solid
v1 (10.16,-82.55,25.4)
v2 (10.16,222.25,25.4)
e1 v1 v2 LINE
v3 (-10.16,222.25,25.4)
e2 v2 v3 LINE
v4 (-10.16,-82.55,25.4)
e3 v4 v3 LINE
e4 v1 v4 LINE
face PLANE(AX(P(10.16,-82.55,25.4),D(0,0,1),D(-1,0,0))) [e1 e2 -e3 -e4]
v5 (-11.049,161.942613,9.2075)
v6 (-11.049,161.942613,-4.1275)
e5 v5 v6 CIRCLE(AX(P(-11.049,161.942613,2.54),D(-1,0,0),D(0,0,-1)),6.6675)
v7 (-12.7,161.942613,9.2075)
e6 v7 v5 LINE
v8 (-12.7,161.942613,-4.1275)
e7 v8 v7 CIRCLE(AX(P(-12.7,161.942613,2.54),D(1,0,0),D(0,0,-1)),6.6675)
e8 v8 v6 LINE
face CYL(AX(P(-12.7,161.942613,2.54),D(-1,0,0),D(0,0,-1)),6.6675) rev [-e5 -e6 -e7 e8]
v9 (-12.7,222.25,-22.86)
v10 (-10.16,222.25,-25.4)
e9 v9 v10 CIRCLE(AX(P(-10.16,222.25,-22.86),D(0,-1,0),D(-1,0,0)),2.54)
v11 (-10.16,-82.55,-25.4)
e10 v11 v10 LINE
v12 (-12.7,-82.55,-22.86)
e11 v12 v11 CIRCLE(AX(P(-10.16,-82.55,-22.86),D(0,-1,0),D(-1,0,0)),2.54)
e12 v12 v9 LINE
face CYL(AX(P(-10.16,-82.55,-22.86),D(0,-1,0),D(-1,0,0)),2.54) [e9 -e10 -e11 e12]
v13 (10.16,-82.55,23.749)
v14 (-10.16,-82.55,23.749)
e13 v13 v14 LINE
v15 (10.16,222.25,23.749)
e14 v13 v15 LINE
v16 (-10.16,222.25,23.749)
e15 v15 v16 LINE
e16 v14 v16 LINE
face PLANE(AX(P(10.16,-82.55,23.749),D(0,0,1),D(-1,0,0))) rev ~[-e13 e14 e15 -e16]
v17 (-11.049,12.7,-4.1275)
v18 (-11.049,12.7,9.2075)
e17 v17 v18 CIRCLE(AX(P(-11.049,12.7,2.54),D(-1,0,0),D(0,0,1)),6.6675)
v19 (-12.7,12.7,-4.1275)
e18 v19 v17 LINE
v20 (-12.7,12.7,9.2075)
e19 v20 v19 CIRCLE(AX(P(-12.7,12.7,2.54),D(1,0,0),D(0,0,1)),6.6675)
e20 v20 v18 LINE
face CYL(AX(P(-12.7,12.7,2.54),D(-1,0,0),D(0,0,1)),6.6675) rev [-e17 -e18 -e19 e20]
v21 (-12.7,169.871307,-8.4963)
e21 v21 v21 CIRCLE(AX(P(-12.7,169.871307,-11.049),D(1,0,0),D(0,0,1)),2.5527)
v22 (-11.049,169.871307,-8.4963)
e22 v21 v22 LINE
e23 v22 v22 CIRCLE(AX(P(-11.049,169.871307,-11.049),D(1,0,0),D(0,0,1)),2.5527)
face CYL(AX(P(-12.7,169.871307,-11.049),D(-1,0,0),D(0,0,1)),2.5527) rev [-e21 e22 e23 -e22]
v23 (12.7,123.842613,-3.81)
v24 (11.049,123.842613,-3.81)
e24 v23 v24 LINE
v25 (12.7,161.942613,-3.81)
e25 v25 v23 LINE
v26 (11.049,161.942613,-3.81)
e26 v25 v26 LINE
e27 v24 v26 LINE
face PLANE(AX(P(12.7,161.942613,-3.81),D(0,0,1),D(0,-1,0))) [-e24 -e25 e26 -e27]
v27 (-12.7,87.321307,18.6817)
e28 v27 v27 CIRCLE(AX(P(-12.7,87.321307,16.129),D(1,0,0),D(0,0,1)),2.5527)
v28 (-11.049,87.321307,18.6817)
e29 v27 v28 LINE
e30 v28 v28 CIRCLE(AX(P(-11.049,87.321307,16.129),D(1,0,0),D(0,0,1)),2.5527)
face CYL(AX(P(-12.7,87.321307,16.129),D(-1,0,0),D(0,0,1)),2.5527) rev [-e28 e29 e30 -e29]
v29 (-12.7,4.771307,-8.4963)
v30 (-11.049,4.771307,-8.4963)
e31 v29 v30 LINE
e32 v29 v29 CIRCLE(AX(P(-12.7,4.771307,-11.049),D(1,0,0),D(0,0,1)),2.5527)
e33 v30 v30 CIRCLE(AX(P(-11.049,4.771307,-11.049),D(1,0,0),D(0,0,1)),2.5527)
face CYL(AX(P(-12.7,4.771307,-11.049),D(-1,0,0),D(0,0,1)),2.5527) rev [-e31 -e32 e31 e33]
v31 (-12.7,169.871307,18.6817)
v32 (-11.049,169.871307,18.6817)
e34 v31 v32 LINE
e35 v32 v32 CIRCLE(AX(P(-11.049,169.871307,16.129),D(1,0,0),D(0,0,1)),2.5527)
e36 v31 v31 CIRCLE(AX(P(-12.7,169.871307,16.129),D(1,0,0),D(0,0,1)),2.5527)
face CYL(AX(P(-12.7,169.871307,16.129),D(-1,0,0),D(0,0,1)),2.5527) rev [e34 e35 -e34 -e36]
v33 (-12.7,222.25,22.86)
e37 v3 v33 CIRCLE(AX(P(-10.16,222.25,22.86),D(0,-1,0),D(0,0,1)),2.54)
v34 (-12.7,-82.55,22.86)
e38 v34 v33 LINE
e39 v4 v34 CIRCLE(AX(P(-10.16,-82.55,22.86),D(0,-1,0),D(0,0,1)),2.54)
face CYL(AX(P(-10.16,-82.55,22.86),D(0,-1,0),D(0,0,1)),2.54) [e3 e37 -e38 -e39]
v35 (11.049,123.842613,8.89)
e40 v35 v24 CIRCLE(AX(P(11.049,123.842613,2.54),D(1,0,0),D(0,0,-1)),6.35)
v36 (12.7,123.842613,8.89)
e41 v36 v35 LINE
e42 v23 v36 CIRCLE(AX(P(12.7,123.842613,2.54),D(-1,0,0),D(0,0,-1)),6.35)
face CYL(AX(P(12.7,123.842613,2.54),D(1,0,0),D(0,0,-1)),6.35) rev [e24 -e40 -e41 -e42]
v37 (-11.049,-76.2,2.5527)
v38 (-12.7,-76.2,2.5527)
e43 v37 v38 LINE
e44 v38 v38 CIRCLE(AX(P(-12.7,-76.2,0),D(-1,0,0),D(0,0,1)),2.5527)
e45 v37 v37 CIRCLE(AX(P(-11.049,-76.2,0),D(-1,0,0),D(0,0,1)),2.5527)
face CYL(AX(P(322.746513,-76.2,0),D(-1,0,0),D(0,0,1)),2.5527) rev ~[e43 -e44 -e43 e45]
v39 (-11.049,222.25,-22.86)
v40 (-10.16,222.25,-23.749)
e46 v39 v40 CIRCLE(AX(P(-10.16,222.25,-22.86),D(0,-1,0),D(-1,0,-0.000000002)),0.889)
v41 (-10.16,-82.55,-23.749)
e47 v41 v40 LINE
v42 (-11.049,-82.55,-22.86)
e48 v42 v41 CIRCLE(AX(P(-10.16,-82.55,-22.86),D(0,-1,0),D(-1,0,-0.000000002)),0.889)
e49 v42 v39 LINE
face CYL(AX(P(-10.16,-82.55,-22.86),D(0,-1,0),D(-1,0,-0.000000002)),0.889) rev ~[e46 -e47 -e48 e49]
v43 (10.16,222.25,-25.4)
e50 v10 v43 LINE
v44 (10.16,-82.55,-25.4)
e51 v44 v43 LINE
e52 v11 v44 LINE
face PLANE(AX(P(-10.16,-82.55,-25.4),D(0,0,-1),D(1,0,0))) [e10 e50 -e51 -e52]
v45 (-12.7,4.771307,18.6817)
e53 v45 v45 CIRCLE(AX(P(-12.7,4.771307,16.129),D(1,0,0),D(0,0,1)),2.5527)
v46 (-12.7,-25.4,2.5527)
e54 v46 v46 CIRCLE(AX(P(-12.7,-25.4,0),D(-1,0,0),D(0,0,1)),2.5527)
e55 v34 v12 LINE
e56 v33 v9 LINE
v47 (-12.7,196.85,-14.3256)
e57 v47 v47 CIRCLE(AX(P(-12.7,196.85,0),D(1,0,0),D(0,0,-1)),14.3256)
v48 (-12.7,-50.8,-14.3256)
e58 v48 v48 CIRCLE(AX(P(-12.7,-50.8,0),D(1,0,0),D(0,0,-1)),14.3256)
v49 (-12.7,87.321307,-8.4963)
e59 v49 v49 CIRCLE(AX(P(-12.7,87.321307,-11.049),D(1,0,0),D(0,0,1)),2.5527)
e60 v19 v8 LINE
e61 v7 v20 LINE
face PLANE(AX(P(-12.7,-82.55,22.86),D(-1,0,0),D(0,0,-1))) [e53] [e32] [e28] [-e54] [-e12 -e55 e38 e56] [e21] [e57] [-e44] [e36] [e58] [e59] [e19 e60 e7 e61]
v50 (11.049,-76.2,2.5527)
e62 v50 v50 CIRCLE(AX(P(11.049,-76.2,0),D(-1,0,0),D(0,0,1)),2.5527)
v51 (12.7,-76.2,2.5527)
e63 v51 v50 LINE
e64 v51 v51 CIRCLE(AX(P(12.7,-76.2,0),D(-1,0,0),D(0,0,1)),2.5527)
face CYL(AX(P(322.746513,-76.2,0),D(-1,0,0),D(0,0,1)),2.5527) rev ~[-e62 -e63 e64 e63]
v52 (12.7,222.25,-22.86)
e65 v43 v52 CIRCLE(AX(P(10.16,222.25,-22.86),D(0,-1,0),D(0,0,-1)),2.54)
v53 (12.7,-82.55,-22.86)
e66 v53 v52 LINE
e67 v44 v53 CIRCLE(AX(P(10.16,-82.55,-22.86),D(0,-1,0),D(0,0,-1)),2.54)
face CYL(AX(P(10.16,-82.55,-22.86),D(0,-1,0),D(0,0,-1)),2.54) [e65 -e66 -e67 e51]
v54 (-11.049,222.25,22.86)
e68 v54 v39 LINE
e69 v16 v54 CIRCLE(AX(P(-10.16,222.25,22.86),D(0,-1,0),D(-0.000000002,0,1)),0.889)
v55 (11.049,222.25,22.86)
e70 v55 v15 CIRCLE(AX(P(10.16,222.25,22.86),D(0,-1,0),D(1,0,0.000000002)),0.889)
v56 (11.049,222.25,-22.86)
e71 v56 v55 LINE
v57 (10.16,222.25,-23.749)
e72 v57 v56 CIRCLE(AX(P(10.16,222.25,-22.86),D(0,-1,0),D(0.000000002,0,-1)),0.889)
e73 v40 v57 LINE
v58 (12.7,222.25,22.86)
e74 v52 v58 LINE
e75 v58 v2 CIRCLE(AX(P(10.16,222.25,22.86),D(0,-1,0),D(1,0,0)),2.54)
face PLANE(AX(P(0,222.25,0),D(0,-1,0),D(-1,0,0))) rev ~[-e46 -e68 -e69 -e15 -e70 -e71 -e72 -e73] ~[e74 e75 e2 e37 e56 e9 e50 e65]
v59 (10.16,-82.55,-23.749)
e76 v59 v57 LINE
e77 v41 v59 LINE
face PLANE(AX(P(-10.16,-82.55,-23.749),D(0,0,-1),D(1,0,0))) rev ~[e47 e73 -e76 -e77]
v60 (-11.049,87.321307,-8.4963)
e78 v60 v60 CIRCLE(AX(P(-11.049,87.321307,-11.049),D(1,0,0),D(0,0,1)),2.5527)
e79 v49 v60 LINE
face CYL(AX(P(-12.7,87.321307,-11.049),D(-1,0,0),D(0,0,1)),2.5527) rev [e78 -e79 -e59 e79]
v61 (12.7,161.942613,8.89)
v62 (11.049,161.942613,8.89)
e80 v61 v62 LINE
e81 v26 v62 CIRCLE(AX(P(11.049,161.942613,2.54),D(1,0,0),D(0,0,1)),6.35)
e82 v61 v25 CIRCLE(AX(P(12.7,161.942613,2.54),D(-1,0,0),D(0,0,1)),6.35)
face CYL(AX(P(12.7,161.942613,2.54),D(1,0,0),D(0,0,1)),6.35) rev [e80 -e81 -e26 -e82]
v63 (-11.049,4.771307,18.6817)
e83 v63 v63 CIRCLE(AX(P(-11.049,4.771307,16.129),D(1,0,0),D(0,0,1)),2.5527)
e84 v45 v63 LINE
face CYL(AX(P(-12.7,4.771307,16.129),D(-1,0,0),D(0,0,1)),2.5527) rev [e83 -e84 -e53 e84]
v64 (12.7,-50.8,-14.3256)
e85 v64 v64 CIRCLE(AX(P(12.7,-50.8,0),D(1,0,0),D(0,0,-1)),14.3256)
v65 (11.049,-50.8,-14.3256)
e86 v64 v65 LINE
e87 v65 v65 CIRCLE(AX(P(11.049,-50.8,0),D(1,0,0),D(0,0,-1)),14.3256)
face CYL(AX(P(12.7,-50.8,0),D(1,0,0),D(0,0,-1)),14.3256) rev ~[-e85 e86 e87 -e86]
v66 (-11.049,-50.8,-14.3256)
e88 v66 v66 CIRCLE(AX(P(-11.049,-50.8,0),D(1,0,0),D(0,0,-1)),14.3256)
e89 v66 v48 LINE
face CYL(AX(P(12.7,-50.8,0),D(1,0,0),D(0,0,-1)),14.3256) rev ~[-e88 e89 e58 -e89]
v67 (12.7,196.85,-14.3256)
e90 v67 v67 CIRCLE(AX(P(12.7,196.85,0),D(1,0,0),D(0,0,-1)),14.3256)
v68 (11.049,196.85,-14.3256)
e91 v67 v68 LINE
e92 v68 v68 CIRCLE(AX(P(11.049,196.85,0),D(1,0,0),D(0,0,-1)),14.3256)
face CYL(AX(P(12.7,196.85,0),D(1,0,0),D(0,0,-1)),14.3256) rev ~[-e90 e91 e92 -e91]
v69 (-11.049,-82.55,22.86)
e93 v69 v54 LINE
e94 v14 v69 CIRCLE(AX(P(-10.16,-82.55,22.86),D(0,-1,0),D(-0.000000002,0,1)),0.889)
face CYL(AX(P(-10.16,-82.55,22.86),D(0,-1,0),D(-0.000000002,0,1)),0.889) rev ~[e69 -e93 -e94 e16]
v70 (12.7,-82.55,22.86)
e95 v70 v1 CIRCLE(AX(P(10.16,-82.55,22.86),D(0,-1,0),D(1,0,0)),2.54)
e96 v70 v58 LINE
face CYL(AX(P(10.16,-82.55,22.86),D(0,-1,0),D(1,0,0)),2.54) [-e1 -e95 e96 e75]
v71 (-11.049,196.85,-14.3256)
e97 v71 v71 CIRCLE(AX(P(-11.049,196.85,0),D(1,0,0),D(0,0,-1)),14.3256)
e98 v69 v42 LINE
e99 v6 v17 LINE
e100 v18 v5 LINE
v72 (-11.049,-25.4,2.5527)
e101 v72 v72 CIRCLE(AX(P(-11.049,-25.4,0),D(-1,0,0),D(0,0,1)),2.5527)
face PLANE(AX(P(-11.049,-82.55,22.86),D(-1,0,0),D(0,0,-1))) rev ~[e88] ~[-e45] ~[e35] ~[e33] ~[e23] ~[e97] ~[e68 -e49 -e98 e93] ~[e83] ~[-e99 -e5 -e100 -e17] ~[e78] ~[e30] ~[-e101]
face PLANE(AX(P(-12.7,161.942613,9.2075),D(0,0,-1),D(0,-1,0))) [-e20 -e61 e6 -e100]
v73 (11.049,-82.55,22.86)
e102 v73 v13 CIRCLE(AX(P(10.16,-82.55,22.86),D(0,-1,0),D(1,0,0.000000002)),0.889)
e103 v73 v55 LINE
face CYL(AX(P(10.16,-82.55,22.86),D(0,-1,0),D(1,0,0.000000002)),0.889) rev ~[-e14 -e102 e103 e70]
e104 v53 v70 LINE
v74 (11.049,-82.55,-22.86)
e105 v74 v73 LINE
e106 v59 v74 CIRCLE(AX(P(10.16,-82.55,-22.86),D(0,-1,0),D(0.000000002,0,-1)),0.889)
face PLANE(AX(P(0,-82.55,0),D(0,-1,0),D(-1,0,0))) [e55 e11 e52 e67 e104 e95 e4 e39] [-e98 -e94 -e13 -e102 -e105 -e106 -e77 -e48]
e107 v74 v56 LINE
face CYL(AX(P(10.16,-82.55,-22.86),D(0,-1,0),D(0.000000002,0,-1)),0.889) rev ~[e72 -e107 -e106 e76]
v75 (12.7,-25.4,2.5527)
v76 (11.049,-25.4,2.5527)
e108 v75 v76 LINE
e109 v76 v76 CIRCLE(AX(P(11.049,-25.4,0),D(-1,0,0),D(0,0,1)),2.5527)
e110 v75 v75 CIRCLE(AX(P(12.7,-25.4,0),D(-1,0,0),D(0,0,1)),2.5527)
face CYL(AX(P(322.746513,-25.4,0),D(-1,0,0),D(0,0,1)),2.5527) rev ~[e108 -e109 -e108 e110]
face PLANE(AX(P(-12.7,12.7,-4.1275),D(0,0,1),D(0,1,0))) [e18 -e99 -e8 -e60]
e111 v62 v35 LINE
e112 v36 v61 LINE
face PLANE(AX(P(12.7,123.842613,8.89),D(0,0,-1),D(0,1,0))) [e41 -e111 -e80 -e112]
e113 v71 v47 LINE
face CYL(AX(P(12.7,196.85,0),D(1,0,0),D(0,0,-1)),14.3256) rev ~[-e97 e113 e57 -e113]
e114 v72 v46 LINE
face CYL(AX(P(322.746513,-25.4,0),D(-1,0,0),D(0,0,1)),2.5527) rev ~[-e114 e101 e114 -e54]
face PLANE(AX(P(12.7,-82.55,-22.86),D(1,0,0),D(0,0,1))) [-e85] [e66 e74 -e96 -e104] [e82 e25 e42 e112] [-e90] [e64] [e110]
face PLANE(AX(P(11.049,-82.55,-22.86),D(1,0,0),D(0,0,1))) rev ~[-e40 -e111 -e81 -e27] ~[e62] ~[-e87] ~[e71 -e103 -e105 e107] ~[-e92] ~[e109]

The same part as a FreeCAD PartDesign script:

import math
import FreeCAD as App
import Part
import Sketcher

V = App.Vector
Q = App.Units.Quantity

doc = App.newDocument("Part")
body = doc.addObject("PartDesign::Body", "Body")

# Sketch on XZ plane
sketch1 = body.newObject("Sketcher::SketchObject", "Sketch")
sketch1.AttachmentSupport = (doc.getObject("XZ_Plane"), [""])
sketch1.MapMode = "FlatFace"
sketch1.addGeometry(Part.LineSegment(V(10.16, -25.4, 0), V(-10.16, -25.4, 0)), False)
sketch1.addGeometry(Part.ArcOfCircle(Part.Circle(V(-10.16, -22.86, 0), V(0, 0, 1), 2.54), math.radians(-180), math.radians(-90)), False)
sketch1.addGeometry(Part.LineSegment(V(-12.7, -22.86, 0), V(-12.7, 22.86, 0)), False)
sketch1.addGeometry(Part.ArcOfCircle(Part.Circle(V(-10.16, 22.86, 0), V(0, 0, 1), 2.54), math.radians(90), math.radians(180)), False)
sketch1.addGeometry(Part.LineSegment(V(-10.16, 25.4, 0), V(10.16, 25.4, 0)), False)
sketch1.addGeometry(Part.ArcOfCircle(Part.Circle(V(10.16, 22.86, 0), V(0, 0, 1), 2.54), math.radians(0), math.radians(90)), False)
sketch1.addGeometry(Part.LineSegment(V(12.7, 22.86, 0), V(12.7, -22.86, 0)), False)
sketch1.addGeometry(Part.ArcOfCircle(Part.Circle(V(10.16, -22.86, 0), V(0, 0, 1), 2.54), math.radians(-90), math.radians(0)), False)
sketch1.addGeometry(Part.LineSegment(V(-10.16, -23.749, 0), V(10.16, -23.749, 0)), False)
sketch1.addGeometry(Part.ArcOfCircle(Part.Circle(V(10.16, -22.86, 0), V(0, 0, 1), 0.889), math.radians(-90), math.radians(0)), False)
sketch1.addGeometry(Part.LineSegment(V(11.049, -22.86, 0), V(11.049, 22.86, 0)), False)
sketch1.addGeometry(Part.ArcOfCircle(Part.Circle(V(10.16, 22.86, 0), V(0, 0, 1), 0.889), math.radians(0), math.radians(90)), False)
sketch1.addGeometry(Part.LineSegment(V(10.16, 23.749, 0), V(-10.16, 23.749, 0)), False)
sketch1.addGeometry(Part.ArcOfCircle(Part.Circle(V(-10.16, 22.86, 0), V(0, 0, 1), 0.889), math.radians(90), math.radians(180)), False)
sketch1.addGeometry(Part.LineSegment(V(-11.049, 22.86, 0), V(-11.049, -22.86, 0)), False)
sketch1.addGeometry(Part.ArcOfCircle(Part.Circle(V(-10.16, -22.86, 0), V(0, 0, 1), 0.889), math.radians(-180), math.radians(-90)), False)
sketch1.addConstraint(Sketcher.Constraint("Tangent", 0, 2, 1, 2))
sketch1.addConstraint(Sketcher.Constraint("Tangent", 1, 1, 2, 1))
sketch1.addConstraint(Sketcher.Constraint("Tangent", 2, 2, 3, 2))
sketch1.addConstraint(Sketcher.Constraint("Tangent", 3, 1, 4, 1))
sketch1.addConstraint(Sketcher.Constraint("Tangent", 4, 2, 5, 2))
sketch1.addConstraint(Sketcher.Constraint("Tangent", 5, 1, 6, 1))
sketch1.addConstraint(Sketcher.Constraint("Tangent", 6, 2, 7, 2))
sketch1.addConstraint(Sketcher.Constraint("Tangent", 7, 1, 0, 1))
sketch1.addConstraint(Sketcher.Constraint("Tangent", 8, 2, 9, 1))
sketch1.addConstraint(Sketcher.Constraint("Tangent", 9, 2, 10, 1))
sketch1.addConstraint(Sketcher.Constraint("Tangent", 10, 2, 11, 1))
sketch1.addConstraint(Sketcher.Constraint("Tangent", 11, 2, 12, 1))
sketch1.addConstraint(Sketcher.Constraint("Tangent", 12, 2, 13, 1))
sketch1.addConstraint(Sketcher.Constraint("Tangent", 13, 2, 14, 1))
sketch1.addConstraint(Sketcher.Constraint("Tangent", 14, 2, 15, 1))
sketch1.addConstraint(Sketcher.Constraint("Tangent", 15, 2, 8, 1))
sketch1.addConstraint(Sketcher.Constraint("Horizontal", 0))
sketch1.addConstraint(Sketcher.Constraint("Vertical", 2))
sketch1.addConstraint(Sketcher.Constraint("Horizontal", 4))
sketch1.addConstraint(Sketcher.Constraint("Vertical", 6))
sketch1.addConstraint(Sketcher.Constraint("Horizontal", 8))
sketch1.addConstraint(Sketcher.Constraint("Vertical", 10))
sketch1.addConstraint(Sketcher.Constraint("Horizontal", 12))
sketch1.addConstraint(Sketcher.Constraint("Vertical", 14))
sketch1.addConstraint(Sketcher.Constraint("Coincident", 9, 3, 7, 3))
sketch1.addConstraint(Sketcher.Constraint("Coincident", 11, 3, 5, 3))
sketch1.addConstraint(Sketcher.Constraint("Coincident", 13, 3, 3, 3))
sketch1.addConstraint(Sketcher.Constraint("Equal", 1, 3))
sketch1.addConstraint(Sketcher.Constraint("Equal", 3, 5))
sketch1.addConstraint(Sketcher.Constraint("Equal", 5, 7))
sketch1.addConstraint(Sketcher.Constraint("Equal", 13, 15))
sketch1.addConstraint(Sketcher.Constraint("Symmetric", 1, 3, 5, 3, -1, 1))
sketch1.addConstraint(Sketcher.Constraint("Radius", 1, Q("0.1 in")))
sketch1.addConstraint(Sketcher.Constraint("DistanceX", 0, 2, 0, 1, Q("0.8 in")))
sketch1.addConstraint(Sketcher.Constraint("DistanceY", 2, 1, 2, 2, Q("1.8 in")))
sketch1.addConstraint(Sketcher.Constraint("Radius", 9, Q("0.035 in")))
pad1 = body.newObject("PartDesign::Pad", "Pad")
pad1.Profile = sketch1
pad1.Type = "TwoLengths"
pad1.Length = Q("8.75 in")
pad1.Length2 = Q("3.25 in")
pad1.Reversed = True

# Sketch on YZ plane
sketch2 = body.newObject("Sketcher::SketchObject", "Sketch001")
sketch2.AttachmentSupport = (doc.getObject("YZ_Plane"), [""])
sketch2.MapMode = "FlatFace"
sketch2.AttachmentOffset = App.Placement(V(0, 0, -0.5 * 25.4), App.Rotation())
sketch2.addGeometry(Part.LineSegment(V(12.7, 9.2075, 0), V(161.942613, 9.2075, 0)), False)
sketch2.addGeometry(Part.ArcOfCircle(Part.Circle(V(161.942613, 2.54, 0), V(0, 0, 1), 6.6675), math.radians(-90), math.radians(90)), False)
sketch2.addGeometry(Part.LineSegment(V(161.942613, -4.1275, 0), V(12.7, -4.1275, 0)), False)
sketch2.addGeometry(Part.ArcOfCircle(Part.Circle(V(12.7, 2.54, 0), V(0, 0, 1), 6.6675), math.radians(90), math.radians(270)), False)
sketch2.addConstraint(Sketcher.Constraint("Tangent", 0, 2, 1, 2))
sketch2.addConstraint(Sketcher.Constraint("Tangent", 1, 1, 2, 1))
sketch2.addConstraint(Sketcher.Constraint("Tangent", 2, 2, 3, 2))
sketch2.addConstraint(Sketcher.Constraint("Tangent", 3, 1, 0, 1))
sketch2.addConstraint(Sketcher.Constraint("Horizontal", 0))
sketch2.addConstraint(Sketcher.Constraint("Horizontal", 2))
sketch2.addConstraint(Sketcher.Constraint("DistanceY", -1, 1, 1, 3, Q("0.1 in")))
sketch2.addConstraint(Sketcher.Constraint("DistanceX", -1, 1, 3, 3, Q("0.5 in")))
sketch2.addConstraint(Sketcher.Constraint("Radius", 1, Q("0.2625 in")))
sketch2.addConstraint(Sketcher.Constraint("DistanceX", 0, 1, 0, 2, 149.242613))
pocket1 = body.newObject("PartDesign::Pocket", "Pocket")
pocket1.Profile = sketch2
pocket1.Type = "UpToFirst"
pocket1.Reversed = True

# Sketch on YZ plane
sketch3 = body.newObject("Sketcher::SketchObject", "Sketch002")
sketch3.AttachmentSupport = (doc.getObject("YZ_Plane"), [""])
sketch3.MapMode = "FlatFace"
sketch3.AttachmentOffset = App.Placement(V(0, 0, 0.5 * 25.4), App.Rotation())
sketch3.addGeometry(Part.LineSegment(V(123.842613, -3.81, 0), V(161.942613, -3.81, 0)), False)
sketch3.addGeometry(Part.ArcOfCircle(Part.Circle(V(161.942613, 2.54, 0), V(0, 0, 1), 6.35), math.radians(-90), math.radians(90)), False)
sketch3.addGeometry(Part.LineSegment(V(161.942613, 8.89, 0), V(123.842613, 8.89, 0)), False)
sketch3.addGeometry(Part.ArcOfCircle(Part.Circle(V(123.842613, 2.54, 0), V(0, 0, 1), 6.35), math.radians(90), math.radians(270)), False)
sketch3.addConstraint(Sketcher.Constraint("Tangent", 0, 2, 1, 1))
sketch3.addConstraint(Sketcher.Constraint("Tangent", 1, 2, 2, 1))
sketch3.addConstraint(Sketcher.Constraint("Tangent", 2, 2, 3, 1))
sketch3.addConstraint(Sketcher.Constraint("Tangent", 3, 2, 0, 1))
sketch3.addConstraint(Sketcher.Constraint("Horizontal", 0))
sketch3.addConstraint(Sketcher.Constraint("Horizontal", 2))
sketch3.addConstraint(Sketcher.Constraint("Radius", 1, Q("0.25 in")))
sketch3.addConstraint(Sketcher.Constraint("DistanceX", 0, 1, 0, 2, Q("1.5 in")))
sketch3.addConstraint(Sketcher.Constraint("DistanceY", -1, 1, 1, 3, Q("0.1 in")))
sketch3.addConstraint(Sketcher.Constraint("DistanceX", -1, 1, 1, 3, 161.942613))
pocket2 = body.newObject("PartDesign::Pocket", "Pocket001")
pocket2.Profile = sketch3
pocket2.Type = "UpToFirst"

# Sketch on YZ plane
sketch4 = body.newObject("Sketcher::SketchObject", "Sketch003")
sketch4.AttachmentSupport = (doc.getObject("YZ_Plane"), [""])
sketch4.MapMode = "FlatFace"
sketch4.AttachmentOffset = App.Placement(V(0, 0, -0.5 * 25.4), App.Rotation())
sketch4.addGeometry(Part.Circle(V(4.771307, -11.049, 0), V(0, 0, 1), 2.5527), False)
sketch4.addGeometry(Part.Circle(V(4.771307, 16.129, 0), V(0, 0, 1), 2.5527), False)
sketch4.addGeometry(Part.Circle(V(87.321307, 16.129, 0), V(0, 0, 1), 2.5527), False)
sketch4.addGeometry(Part.Circle(V(87.321307, -11.049, 0), V(0, 0, 1), 2.5527), False)
sketch4.addGeometry(Part.Circle(V(169.871307, 16.129, 0), V(0, 0, 1), 2.5527), False)
sketch4.addGeometry(Part.Circle(V(169.871307, -11.049, 0), V(0, 0, 1), 2.5527), False)
sketch4.addConstraint(Sketcher.Constraint("Equal", 0, 1))
sketch4.addConstraint(Sketcher.Constraint("Equal", 1, 2))
sketch4.addConstraint(Sketcher.Constraint("Equal", 2, 3))
sketch4.addConstraint(Sketcher.Constraint("Equal", 3, 4))
sketch4.addConstraint(Sketcher.Constraint("Equal", 4, 5))
sketch4.addConstraint(Sketcher.Constraint("Horizontal", 1, 3, 2, 3))
sketch4.addConstraint(Sketcher.Constraint("Horizontal", 0, 3, 3, 3))
sketch4.addConstraint(Sketcher.Constraint("Horizontal", 2, 3, 4, 3))
sketch4.addConstraint(Sketcher.Constraint("Horizontal", 3, 3, 5, 3))
sketch4.addConstraint(Sketcher.Constraint("Vertical", 0, 3, 1, 3))
sketch4.addConstraint(Sketcher.Constraint("Vertical", 2, 3, 3, 3))
sketch4.addConstraint(Sketcher.Constraint("Vertical", 4, 3, 5, 3))
sketch4.addConstraint(Sketcher.Constraint("Diameter", 0, Q("0.201 in")))
sketch4.addConstraint(Sketcher.Constraint("DistanceX", 1, 3, 4, 3, Q("6.5 in")))
sketch4.addConstraint(Sketcher.Constraint("DistanceY", 0, 3, 1, 3, Q("1.07 in")))
sketch4.addConstraint(Sketcher.Constraint("DistanceX", 1, 3, 2, 3, Q("3.25 in")))
sketch4.addConstraint(Sketcher.Constraint("DistanceY", 0, 3, -1, 1, Q("0.435 in")))
sketch4.addConstraint(Sketcher.Constraint("DistanceX", -1, 1, 0, 3, 4.771307))
pocket3 = body.newObject("PartDesign::Pocket", "Pocket002")
pocket3.Profile = sketch4
pocket3.Length = Q("0.065 in")
pocket3.Reversed = True

# Sketch on YZ plane
sketch5 = body.newObject("Sketcher::SketchObject", "Sketch004")
sketch5.AttachmentSupport = (doc.getObject("YZ_Plane"), [""])
sketch5.MapMode = "FlatFace"
sketch5.AttachmentOffset = App.Placement(V(0, 0, 0.5 * 25.4), App.Rotation())
sketch5.addGeometry(Part.Circle(V(-50.8, 0, 0), V(0, 0, 1), 14.3256), False)
sketch5.addGeometry(Part.Circle(V(196.85, 0, 0), V(0, 0, 1), 14.3256), False)
sketch5.addConstraint(Sketcher.Constraint("Equal", 0, 1))
sketch5.addConstraint(Sketcher.Constraint("PointOnObject", 0, 3, -1))
sketch5.addConstraint(Sketcher.Constraint("PointOnObject", 1, 3, -1))
sketch5.addConstraint(Sketcher.Constraint("Diameter", 0, Q("1.128 in")))
sketch5.addConstraint(Sketcher.Constraint("DistanceX", 0, 3, -1, 1, Q("2 in")))
sketch5.addConstraint(Sketcher.Constraint("DistanceX", -1, 1, 1, 3, Q("7.75 in")))
pocket4 = body.newObject("PartDesign::Pocket", "Pocket003")
pocket4.Profile = sketch5
pocket4.Type = "ThroughAll"

# Sketch on YZ plane
sketch6 = body.newObject("Sketcher::SketchObject", "Sketch005")
sketch6.AttachmentSupport = (doc.getObject("YZ_Plane"), [""])
sketch6.MapMode = "FlatFace"
sketch6.AttachmentOffset = App.Placement(V(0, 0, 0.5 * 25.4), App.Rotation())
sketch6.addGeometry(Part.Circle(V(-25.4, 0, 0), V(0, 0, 1), 2.5527), False)
sketch6.addGeometry(Part.Circle(V(-76.2, 0, 0), V(0, 0, 1), 2.5527), False)
sketch6.addConstraint(Sketcher.Constraint("Equal", 0, 1))
sketch6.addConstraint(Sketcher.Constraint("PointOnObject", 0, 3, -1))
sketch6.addConstraint(Sketcher.Constraint("PointOnObject", 1, 3, -1))
sketch6.addConstraint(Sketcher.Constraint("Diameter", 0, Q("0.201 in")))
sketch6.addConstraint(Sketcher.Constraint("DistanceX", 0, 3, -1, 1, Q("1 in")))
sketch6.addConstraint(Sketcher.Constraint("DistanceX", 1, 3, -1, 1, Q("3 in")))
doc.recompute()
hole = body.newObject("PartDesign::Hole", "Hole")
hole.Profile = sketch6
hole.ThreadType = "None"
hole.Diameter = Q("0.201 in")
hole.DepthType = "ThroughAll"

doc.recompute()
